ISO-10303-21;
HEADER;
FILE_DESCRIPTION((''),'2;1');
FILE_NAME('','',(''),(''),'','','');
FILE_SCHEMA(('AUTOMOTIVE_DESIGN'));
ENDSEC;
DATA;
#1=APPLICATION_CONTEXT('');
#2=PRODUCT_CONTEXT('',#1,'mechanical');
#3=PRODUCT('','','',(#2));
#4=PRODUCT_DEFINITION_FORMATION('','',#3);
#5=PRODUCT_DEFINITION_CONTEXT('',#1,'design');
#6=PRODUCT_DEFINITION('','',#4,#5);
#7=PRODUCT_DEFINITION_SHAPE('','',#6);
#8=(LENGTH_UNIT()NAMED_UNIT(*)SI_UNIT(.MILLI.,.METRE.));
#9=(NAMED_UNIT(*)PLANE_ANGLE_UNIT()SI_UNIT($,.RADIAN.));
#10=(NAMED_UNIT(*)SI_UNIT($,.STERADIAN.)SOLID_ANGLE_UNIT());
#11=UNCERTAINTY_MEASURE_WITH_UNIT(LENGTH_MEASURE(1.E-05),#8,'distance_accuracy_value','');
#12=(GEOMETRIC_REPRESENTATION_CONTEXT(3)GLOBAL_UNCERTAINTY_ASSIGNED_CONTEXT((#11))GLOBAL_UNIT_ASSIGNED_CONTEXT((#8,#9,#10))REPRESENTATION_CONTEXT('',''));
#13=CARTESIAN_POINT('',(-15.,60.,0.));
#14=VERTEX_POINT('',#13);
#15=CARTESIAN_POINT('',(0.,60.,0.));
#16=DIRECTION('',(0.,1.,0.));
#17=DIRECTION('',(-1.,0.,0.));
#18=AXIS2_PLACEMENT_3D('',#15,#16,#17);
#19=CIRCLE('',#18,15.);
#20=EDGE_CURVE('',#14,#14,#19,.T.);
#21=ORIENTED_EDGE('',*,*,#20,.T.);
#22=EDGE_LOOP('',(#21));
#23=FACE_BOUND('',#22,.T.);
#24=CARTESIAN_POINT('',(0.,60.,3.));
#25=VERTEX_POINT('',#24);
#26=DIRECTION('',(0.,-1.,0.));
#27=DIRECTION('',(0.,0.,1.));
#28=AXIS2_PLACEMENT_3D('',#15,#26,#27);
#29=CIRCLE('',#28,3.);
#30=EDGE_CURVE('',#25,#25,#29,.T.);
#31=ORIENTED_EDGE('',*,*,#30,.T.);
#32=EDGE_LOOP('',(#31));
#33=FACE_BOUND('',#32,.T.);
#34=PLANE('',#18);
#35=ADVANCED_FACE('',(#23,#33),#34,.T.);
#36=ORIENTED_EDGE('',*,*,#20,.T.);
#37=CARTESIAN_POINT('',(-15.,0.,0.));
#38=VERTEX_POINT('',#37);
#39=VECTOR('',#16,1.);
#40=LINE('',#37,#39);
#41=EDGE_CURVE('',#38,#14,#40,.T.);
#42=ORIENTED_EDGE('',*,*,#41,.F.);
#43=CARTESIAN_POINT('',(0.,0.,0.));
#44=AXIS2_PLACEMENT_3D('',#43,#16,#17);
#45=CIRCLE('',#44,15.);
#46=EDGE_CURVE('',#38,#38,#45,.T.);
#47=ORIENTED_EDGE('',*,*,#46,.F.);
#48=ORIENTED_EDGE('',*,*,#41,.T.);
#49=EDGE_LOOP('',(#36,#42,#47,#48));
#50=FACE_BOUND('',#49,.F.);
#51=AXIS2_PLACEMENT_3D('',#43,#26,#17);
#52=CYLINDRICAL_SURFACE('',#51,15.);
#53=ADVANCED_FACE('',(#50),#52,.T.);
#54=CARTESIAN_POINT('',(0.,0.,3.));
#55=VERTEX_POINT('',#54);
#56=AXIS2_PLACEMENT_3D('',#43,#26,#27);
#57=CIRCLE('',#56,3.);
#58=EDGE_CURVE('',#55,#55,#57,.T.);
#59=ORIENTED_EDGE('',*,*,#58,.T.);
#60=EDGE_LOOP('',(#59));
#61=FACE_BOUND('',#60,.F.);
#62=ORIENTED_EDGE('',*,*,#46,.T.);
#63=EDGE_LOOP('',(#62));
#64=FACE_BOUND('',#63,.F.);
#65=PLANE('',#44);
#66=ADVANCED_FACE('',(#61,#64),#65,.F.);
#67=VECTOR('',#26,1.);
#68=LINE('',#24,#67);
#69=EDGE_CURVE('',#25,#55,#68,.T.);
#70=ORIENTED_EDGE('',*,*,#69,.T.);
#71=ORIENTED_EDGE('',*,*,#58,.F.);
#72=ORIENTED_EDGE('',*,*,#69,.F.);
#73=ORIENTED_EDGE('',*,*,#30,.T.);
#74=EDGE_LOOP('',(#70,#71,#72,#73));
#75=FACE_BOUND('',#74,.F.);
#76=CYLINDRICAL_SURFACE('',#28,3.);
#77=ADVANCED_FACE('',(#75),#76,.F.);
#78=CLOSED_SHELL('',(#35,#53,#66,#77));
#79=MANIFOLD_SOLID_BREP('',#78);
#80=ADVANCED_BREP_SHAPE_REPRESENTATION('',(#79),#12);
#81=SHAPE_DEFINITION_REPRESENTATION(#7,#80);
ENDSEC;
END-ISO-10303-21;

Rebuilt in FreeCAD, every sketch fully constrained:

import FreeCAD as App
import Part
import Sketcher

doc = App.newDocument("Part")
body = doc.addObject("PartDesign::Body", "Body")

# Sketch on XZ plane
sketch1 = body.newObject("Sketcher::SketchObject", "Sketch")
sketch1.AttachmentSupport = (doc.getObject("XZ_Plane"), [""])
sketch1.MapMode = "FlatFace"
sketch1.addGeometry(Part.Circle(App.Vector(0, 0, 0), App.Vector(0, 0, 1), 15), False)
sketch1.addConstraint([
    Sketcher.Constraint("Coincident", 0, 3, -1, 1),
    Sketcher.Constraint("Diameter", 0, 30.0),
])
pad1 = body.newObject("PartDesign::Pad", "Pad")
pad1.Profile = sketch1
pad1.Length = 60
pad1.Reversed = True

# Sketch on XZ plane
sketch2 = body.newObject("Sketcher::SketchObject", "Sketch001")
sketch2.AttachmentSupport = (doc.getObject("XZ_Plane"), [""])
sketch2.MapMode = "FlatFace"
sketch2.AttachmentOffset = App.Placement(App.Vector(0, 0, -60), App.Rotation())
sketch2.addGeometry(Part.Circle(App.Vector(0, 0, 0), App.Vector(0, 0, 1), 3), False)
sketch2.addConstraint([
    Sketcher.Constraint("Coincident", 0, 3, -1, 1),
    Sketcher.Constraint("Diameter", 0, 6.0),
])
doc.recompute()
hole = body.newObject("PartDesign::Hole", "Hole")
hole.Profile = sketch2
hole.ThreadType = "None"
hole.Diameter = 6
hole.DepthType = "Dimension"
hole.Depth = 60
hole.DrillPoint = "Flat"
hole.Reversed = True

doc.recompute()
